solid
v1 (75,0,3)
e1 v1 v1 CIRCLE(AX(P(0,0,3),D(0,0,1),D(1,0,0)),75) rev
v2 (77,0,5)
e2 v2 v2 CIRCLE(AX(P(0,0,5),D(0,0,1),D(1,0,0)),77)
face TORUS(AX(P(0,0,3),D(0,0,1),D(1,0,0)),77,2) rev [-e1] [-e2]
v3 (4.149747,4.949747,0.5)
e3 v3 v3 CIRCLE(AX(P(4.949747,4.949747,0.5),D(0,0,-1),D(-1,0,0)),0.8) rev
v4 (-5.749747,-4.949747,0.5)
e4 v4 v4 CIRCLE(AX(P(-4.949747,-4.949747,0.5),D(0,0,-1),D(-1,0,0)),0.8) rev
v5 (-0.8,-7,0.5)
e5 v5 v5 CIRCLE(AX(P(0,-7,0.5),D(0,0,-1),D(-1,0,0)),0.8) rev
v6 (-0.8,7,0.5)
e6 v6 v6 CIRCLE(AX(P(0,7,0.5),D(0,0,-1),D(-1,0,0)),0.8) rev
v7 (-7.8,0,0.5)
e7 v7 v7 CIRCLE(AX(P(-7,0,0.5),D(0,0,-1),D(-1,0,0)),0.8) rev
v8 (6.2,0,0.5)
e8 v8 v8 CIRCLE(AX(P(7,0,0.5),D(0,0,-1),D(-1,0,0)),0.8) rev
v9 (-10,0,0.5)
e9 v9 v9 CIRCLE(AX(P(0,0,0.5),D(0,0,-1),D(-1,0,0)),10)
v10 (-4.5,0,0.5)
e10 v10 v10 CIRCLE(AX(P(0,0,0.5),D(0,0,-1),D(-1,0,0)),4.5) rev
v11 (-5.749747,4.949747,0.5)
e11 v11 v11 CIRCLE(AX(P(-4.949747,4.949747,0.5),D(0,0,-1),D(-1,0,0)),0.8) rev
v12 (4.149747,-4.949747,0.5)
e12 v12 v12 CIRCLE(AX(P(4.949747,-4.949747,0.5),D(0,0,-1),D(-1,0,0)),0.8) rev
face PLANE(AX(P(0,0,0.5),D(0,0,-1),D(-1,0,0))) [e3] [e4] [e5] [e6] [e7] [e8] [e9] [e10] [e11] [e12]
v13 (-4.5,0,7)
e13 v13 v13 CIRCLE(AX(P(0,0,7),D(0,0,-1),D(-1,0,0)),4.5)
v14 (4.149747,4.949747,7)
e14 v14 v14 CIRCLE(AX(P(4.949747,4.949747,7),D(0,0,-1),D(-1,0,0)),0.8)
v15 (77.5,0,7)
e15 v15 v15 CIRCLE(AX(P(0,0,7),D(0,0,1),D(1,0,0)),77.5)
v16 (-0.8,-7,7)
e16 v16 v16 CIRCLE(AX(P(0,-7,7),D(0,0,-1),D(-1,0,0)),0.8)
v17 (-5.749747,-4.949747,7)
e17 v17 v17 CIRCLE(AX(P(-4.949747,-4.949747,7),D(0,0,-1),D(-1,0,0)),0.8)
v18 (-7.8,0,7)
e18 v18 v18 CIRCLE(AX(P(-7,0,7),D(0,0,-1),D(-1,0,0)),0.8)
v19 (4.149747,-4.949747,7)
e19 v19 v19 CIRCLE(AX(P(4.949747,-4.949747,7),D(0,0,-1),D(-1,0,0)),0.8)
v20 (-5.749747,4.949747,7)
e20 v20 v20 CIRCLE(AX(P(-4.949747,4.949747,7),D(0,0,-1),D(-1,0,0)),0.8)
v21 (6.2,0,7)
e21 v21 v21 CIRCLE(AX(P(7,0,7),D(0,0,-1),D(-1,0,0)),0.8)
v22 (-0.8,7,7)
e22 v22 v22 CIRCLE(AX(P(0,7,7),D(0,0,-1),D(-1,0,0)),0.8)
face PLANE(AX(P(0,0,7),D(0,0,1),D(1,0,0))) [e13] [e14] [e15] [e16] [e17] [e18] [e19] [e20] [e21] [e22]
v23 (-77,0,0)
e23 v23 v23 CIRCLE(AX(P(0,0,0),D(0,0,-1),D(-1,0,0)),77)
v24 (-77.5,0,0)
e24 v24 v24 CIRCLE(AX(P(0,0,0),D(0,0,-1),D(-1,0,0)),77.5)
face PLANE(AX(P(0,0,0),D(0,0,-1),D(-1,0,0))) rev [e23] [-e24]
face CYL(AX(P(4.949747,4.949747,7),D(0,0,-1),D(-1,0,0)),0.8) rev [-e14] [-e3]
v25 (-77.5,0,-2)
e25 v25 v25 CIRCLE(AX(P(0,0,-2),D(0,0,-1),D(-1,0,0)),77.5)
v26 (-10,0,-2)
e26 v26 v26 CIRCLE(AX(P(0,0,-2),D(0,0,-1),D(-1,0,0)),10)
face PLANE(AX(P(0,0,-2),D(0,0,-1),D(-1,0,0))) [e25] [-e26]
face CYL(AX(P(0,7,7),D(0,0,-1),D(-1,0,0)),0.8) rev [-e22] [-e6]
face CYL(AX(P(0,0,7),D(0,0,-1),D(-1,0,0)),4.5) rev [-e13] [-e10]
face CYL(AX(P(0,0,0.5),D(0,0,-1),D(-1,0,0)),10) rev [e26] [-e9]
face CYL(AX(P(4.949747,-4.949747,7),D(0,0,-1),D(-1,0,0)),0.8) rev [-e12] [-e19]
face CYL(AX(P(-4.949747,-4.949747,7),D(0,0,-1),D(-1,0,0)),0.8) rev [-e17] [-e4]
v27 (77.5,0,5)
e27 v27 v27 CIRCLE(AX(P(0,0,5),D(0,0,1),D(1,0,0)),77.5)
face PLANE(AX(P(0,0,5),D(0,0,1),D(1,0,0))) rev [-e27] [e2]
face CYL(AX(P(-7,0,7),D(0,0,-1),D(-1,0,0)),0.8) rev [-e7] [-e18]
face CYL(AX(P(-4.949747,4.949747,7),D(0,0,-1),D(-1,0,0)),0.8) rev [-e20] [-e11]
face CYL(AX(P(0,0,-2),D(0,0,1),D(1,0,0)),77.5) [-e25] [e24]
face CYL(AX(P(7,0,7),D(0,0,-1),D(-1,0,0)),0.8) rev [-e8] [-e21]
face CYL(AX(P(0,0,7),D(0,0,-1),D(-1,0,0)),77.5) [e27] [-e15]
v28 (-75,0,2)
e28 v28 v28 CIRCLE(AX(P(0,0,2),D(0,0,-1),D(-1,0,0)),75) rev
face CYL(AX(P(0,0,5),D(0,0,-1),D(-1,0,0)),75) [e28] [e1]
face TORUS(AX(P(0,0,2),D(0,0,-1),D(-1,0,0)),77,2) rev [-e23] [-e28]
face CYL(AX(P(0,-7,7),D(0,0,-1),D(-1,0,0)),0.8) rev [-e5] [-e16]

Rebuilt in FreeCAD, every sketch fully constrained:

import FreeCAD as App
import Part
import Sketcher

V = App.Vector


def edges_at(feature, points):
    """Names of the edges that pass closest to the given points."""
    edges = feature.Shape.Edges
    near = lambda p: min(range(len(edges)), key=lambda i: edges[i].distToShape(Part.Vertex(*p))[0])
    return sorted({f"Edge{near(p) + 1}" for p in points})

doc = App.newDocument("Part")
params = doc.addObject("Spreadsheet::Sheet", "Params")
for row, (alias, value) in enumerate([
    ("sketch1_diameter", "150 mm"),
    ("pad1_length", "5 mm"),
    ("sketch2_diameter", "155 mm"),
    ("pad2_length", "2 mm"),
    ("sketch3_diameter", "155 mm"),
    ("pad3_length", "2 mm"),
    ("sketch4_diameter", "9 mm"),
    ("sketch4_diameter2", "1.6 mm"),
    ("sketch5_diameter", "20 mm"),
    ("pocket2_length", "2.5 mm"),
    ("fillet_radius", "2 mm"),
], start=1):
    params.set(f"A{row}", alias)
    params.set(f"B{row}", "=" + value)
    params.setAlias(f"B{row}", alias)

body = doc.addObject("PartDesign::Body", "Body")

# Sketch on XY plane
sketch1 = body.newObject("Sketcher::SketchObject", "Sketch")
sketch1.AttachmentSupport = (doc.getObject("XY_Plane"), [""])
sketch1.MapMode = "FlatFace"
sketch1.addGeometry(Part.Circle(V(0, 0, 0), V(0, 0, 1), 75), False)
sketch1.addConstraint([
    Sketcher.Constraint("Coincident", 0, 3, -1, 1),
    Sketcher.Constraint("Diameter", 0, 150.0),
])
sketch1.setExpression("Constraints[1]", "Params.sketch1_diameter")
pad1 = body.newObject("PartDesign::Pad", "Pad")
pad1.Profile = sketch1
pad1.setExpression("Length", "Params.pad1_length")

# Sketch on XY plane
sketch2 = body.newObject("Sketcher::SketchObject", "Sketch001")
sketch2.AttachmentSupport = (doc.getObject("XY_Plane"), [""])
sketch2.MapMode = "FlatFace"
sketch2.AttachmentOffset = App.Placement(V(0, 0, 5), App.Rotation())
sketch2.addGeometry(Part.Circle(V(0, 0, 0), V(0, 0, 1), 78), False)
sketch2.addConstraint([
    Sketcher.Constraint("Coincident", 0, 3, -1, 1),
    Sketcher.Constraint("Diameter", 0, 155.0),
])
sketch2.setExpression("Constraints[1]", "Params.sketch2_diameter")
pad2 = body.newObject("PartDesign::Pad", "Pad001")
pad2.Profile = sketch2
pad2.setExpression("Length", "Params.pad2_length")

# Sketch on XY plane
sketch3 = body.newObject("Sketcher::SketchObject", "Sketch002")
sketch3.AttachmentSupport = (doc.getObject("XY_Plane"), [""])
sketch3.MapMode = "FlatFace"
sketch3.AttachmentOffset = App.Placement(V(0, 0, -2), App.Rotation())
sketch3.addGeometry(Part.Circle(V(0, 0, 0), V(0, 0, 1), 78), False)
sketch3.addConstraint([
    Sketcher.Constraint("Coincident", 0, 3, -1, 1),
    Sketcher.Constraint("Diameter", 0, 155.0),
])
sketch3.setExpression("Constraints[1]", "Params.sketch3_diameter")
pad3 = body.newObject("PartDesign::Pad", "Pad002")
pad3.Profile = sketch3
pad3.setExpression("Length", "Params.pad3_length")

# Sketch on XY plane
sketch4 = body.newObject("Sketcher::SketchObject", "Sketch003")
sketch4.AttachmentSupport = (doc.getObject("XY_Plane"), [""])
sketch4.MapMode = "FlatFace"
sketch4.AttachmentOffset = App.Placement(V(0, 0, -2), App.Rotation())
sketch4.addGeometry([
    Part.Circle(V(0, 0, 0), V(0, 0, 1), 4.5),  # 0
    Part.Circle(V(4.9, 4.9, 0), V(0, 0, 1), 0.8),  # 1
    Part.Circle(V(7, 0, 0), V(0, 0, 1), 0.8),  # 2
    Part.Circle(V(4.9, -4.9, 0), V(0, 0, 1), 0.8),  # 3
    Part.Circle(V(0, -7, 0), V(0, 0, 1), 0.8),  # 4
    Part.Circle(V(-4.9, -4.9, 0), V(0, 0, 1), 0.8),  # 5
    Part.Circle(V(-7, 0, 0), V(0, 0, 1), 0.8),  # 6
    Part.Circle(V(-4.9, 4.9, 0), V(0, 0, 1), 0.8),  # 7
    Part.Circle(V(0, 7, 0), V(0, 0, 1), 0.8),  # 8
], False)
sketch4.addConstraint([
    Sketcher.Constraint("Coincident", 0, 3, -1, 1),
    Sketcher.Constraint("Equal", 1, 2),
    Sketcher.Constraint("Equal", 2, 3),
    Sketcher.Constraint("Equal", 3, 4),
    Sketcher.Constraint("Equal", 4, 5),
    Sketcher.Constraint("Equal", 5, 6),
    Sketcher.Constraint("Equal", 6, 7),
    Sketcher.Constraint("Equal", 7, 8),
    Sketcher.Constraint("Symmetric", 1, 3, 5, 3, -1, 1),
    Sketcher.Constraint("Symmetric", 2, 3, 6, 3, -1, 1),
    Sketcher.Constraint("Symmetric", 3, 3, 7, 3, -1, 1),
    Sketcher.Constraint("Symmetric", 4, 3, 8, 3, -1, 1),
    Sketcher.Constraint("Symmetric", 3, 3, 5, 3, -2),
    Sketcher.Constraint("PointOnObject", 2, 3, -1),
    Sketcher.Constraint("PointOnObject", 4, 3, -2),
    Sketcher.Constraint("Diameter", 0, 9.0),
    Sketcher.Constraint("Diameter", 1, 1.6),
    Sketcher.Constraint("DistanceX", -1, 1, 2, 3, 7.0),
    Sketcher.Constraint("DistanceY", 4, 3, -1, 1, 7.0),
    Sketcher.Constraint("DistanceX", -1, 1, 1, 3, 4.949747),
    Sketcher.Constraint("DistanceY", -1, 1, 1, 3, 4.949747),
])
sketch4.setExpression("Constraints[15]", "Params.sketch4_diameter")
sketch4.setExpression("Constraints[16]", "Params.sketch4_diameter2")
pocket1 = body.newObject("PartDesign::Pocket", "Pocket")
pocket1.Profile = sketch4
pocket1.Type = "ThroughAll"
pocket1.Reversed = True

# Sketch on XY plane
sketch5 = body.newObject("Sketcher::SketchObject", "Sketch004")
sketch5.AttachmentSupport = (doc.getObject("XY_Plane"), [""])
sketch5.MapMode = "FlatFace"
sketch5.AttachmentOffset = App.Placement(V(0, 0, -2), App.Rotation())
sketch5.addGeometry(Part.Circle(V(0, 0, 0), V(0, 0, 1), 10), False)
sketch5.addConstraint([
    Sketcher.Constraint("Coincident", 0, 3, -1, 1),
    Sketcher.Constraint("Diameter", 0, 20.0),
])
sketch5.setExpression("Constraints[1]", "Params.sketch5_diameter")
pocket2 = body.newObject("PartDesign::Pocket", "Pocket001")
pocket2.Profile = sketch5
pocket2.setExpression("Length", "Params.pocket2_length")
pocket2.Reversed = True
doc.recompute()

fillet = body.newObject("PartDesign::Fillet", "Fillet")
fillet.Base = (pocket2, edges_at(pocket2, [(-75, 0, 5), (-75, 0, 0)]))
fillet.setExpression("Radius", "Params.fillet_radius")

doc.recompute()
